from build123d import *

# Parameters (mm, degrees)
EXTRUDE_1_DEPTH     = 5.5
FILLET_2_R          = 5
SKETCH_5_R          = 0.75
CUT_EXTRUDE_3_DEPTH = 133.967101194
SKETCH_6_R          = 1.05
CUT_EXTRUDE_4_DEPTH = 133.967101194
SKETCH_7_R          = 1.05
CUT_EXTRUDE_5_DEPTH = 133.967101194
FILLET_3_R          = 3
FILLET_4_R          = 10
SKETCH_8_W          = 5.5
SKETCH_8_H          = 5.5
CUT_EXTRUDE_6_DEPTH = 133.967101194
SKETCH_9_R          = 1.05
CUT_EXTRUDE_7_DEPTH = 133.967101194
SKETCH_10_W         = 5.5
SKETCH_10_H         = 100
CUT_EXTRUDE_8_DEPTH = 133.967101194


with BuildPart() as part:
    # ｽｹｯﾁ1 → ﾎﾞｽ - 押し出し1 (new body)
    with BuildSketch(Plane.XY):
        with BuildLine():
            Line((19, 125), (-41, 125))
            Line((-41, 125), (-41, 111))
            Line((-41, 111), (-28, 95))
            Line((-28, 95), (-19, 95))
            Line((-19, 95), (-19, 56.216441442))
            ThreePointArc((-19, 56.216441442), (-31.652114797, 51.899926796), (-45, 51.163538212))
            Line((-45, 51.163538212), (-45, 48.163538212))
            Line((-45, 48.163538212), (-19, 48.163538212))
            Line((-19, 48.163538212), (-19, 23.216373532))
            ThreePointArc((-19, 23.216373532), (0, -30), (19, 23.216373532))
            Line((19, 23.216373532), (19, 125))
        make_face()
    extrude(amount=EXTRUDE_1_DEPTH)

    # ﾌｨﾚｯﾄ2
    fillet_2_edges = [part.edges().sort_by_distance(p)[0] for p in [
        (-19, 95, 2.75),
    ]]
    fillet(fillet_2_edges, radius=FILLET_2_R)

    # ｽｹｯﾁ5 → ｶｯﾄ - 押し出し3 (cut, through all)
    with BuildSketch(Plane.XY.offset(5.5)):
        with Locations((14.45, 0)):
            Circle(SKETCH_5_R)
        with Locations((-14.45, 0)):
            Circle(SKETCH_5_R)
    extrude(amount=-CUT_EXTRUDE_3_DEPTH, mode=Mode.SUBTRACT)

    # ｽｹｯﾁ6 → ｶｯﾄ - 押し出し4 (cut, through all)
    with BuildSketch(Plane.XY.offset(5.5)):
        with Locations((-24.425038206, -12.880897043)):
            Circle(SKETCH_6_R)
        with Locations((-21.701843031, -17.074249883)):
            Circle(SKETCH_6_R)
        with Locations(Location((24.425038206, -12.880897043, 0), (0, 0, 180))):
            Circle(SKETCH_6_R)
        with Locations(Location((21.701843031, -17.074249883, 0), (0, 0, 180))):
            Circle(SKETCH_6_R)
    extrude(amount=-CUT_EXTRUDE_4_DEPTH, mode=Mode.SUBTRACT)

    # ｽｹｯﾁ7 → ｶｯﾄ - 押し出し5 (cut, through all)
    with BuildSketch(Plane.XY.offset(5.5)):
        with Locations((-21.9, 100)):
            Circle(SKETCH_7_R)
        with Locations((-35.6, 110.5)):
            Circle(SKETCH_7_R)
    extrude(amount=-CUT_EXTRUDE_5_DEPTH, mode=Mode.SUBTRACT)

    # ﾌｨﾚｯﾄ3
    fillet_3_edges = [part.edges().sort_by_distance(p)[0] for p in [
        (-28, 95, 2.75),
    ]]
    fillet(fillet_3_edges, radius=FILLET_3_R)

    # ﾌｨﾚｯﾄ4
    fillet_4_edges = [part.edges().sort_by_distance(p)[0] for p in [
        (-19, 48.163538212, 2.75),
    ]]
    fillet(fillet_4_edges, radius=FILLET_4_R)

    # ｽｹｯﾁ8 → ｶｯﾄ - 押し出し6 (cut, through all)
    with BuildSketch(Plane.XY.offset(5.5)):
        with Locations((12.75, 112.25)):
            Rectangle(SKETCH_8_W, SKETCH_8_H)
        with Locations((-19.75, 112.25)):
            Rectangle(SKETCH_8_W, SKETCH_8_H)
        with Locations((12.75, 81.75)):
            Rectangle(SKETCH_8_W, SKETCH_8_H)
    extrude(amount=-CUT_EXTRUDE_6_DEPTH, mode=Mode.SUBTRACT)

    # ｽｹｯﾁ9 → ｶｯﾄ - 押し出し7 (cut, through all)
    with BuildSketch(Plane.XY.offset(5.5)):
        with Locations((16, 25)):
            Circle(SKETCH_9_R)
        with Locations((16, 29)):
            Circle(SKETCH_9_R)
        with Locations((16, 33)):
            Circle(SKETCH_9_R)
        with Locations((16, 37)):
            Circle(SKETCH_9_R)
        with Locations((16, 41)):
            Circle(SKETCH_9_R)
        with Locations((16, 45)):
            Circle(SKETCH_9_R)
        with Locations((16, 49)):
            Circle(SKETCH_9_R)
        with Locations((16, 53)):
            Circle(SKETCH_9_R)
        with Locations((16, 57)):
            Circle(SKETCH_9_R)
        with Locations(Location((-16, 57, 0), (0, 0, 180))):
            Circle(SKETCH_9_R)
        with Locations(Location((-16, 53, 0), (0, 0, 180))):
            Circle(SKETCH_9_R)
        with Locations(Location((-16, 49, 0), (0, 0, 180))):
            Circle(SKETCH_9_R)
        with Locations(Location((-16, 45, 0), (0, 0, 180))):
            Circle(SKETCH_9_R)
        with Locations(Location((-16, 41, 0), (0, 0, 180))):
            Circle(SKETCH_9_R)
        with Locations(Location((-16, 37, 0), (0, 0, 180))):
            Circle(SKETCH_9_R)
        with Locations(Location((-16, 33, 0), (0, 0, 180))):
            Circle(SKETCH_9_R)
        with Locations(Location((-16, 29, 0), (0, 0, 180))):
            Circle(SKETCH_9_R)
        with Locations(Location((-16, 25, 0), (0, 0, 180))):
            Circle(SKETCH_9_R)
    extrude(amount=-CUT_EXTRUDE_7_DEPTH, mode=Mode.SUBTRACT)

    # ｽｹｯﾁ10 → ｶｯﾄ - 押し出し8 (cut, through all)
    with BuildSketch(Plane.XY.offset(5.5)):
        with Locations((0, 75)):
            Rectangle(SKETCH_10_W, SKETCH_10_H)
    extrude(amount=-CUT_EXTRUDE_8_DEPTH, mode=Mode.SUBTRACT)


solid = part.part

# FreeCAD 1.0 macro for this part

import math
import FreeCAD as App
import Part
import Sketcher
Q = App.Units.Quantity


def edges_at(feature, points):
    """Names of the edges that pass closest to the given points."""
    edges = feature.Shape.Edges
    near = lambda p: min(range(len(edges)), key=lambda i: edges[i].distToShape(Part.Vertex(*p))[0])
    return sorted({f"Edge{near(p) + 1}" for p in points})

doc = App.newDocument("Part")
body = doc.addObject("PartDesign::Body", "Body")

sketch1 = body.newObject("Sketcher::SketchObject", "Sketch")
sketch1.AttachmentSupport = (doc.getObject("XY_Plane"), [""])
sketch1.MapMode = "FlatFace"
sketch1.addGeometry([
    Part.LineSegment(App.Vector(19, 125, 0), App.Vector(-41, 125, 0)),
    Part.LineSegment(App.Vector(-41, 125, 0), App.Vector(-41, 111, 0)),
    Part.LineSegment(App.Vector(-41, 111, 0), App.Vector(-28, 95, 0)),
    Part.LineSegment(App.Vector(-28, 95, 0), App.Vector(-19, 95, 0)),
    Part.LineSegment(App.Vector(-19, 95, 0), App.Vector(-19, 56.2, 0)),
    Part.ArcOfCircle(Part.Circle(App.Vector(-41, 100, 0), App.Vector(0, 0, 1), 49), math.radians(-95), math.radians(-63)),
    Part.LineSegment(App.Vector(-45, 51.2, 0), App.Vector(-45, 48.2, 0)),
    Part.LineSegment(App.Vector(-45, 48.2, 0), App.Vector(-19, 48.2, 0)),
    Part.LineSegment(App.Vector(-19, 48.2, 0), App.Vector(-19, 23.2, 0)),
    Part.ArcOfCircle(Part.Circle(App.Vector(0, 0, 0), App.Vector(0, 0, 1), 30), math.radians(129), math.radians(411)),
    Part.LineSegment(App.Vector(19, 23.2, 0), App.Vector(19, 125, 0)),
], False)
sketch1.addConstraint([
    Sketcher.Constraint("Coincident", 0, 2, 1, 1),
    Sketcher.Constraint("Coincident", 1, 2, 2, 1),
    Sketcher.Constraint("Coincident", 2, 2, 3, 1),
    Sketcher.Constraint("Coincident", 3, 2, 4, 1),
    Sketcher.Constraint("Coincident", 4, 2, 5, 2),
    Sketcher.Constraint("Coincident", 5, 1, 6, 1),
    Sketcher.Constraint("Coincident", 6, 2, 7, 1),
    Sketcher.Constraint("Coincident", 7, 2, 8, 1),
    Sketcher.Constraint("Coincident", 8, 2, 9, 1),
    Sketcher.Constraint("Coincident", 9, 2, 10, 1),
    Sketcher.Constraint("Coincident", 10, 2, 0, 1),
    Sketcher.Constraint("Horizontal", 0),
    Sketcher.Constraint("Vertical", 1),
    Sketcher.Constraint("Horizontal", 3),
    Sketcher.Constraint("Vertical", 4),
    Sketcher.Constraint("Vertical", 6),
    Sketcher.Constraint("Horizontal", 7),
    Sketcher.Constraint("Vertical", 8),
    Sketcher.Constraint("Vertical", 10),
    Sketcher.Constraint("Coincident", 9, 3, -1, 1),
    Sketcher.Constraint("Horizontal", 8, 2, 9, 2),
    Sketcher.Constraint("Vertical", 5, 3, 0, 2),
    Sketcher.Constraint("Vertical", 4, 2, 7, 2),
    Sketcher.Constraint("Radius", 5, Q("49 mm")),
    Sketcher.Constraint("Radius", 9, Q("30 mm")),
    Sketcher.Constraint("DistanceX", 0, 2, 0, 1, Q("60 mm")),
    Sketcher.Constraint("DistanceX", 3, 1, 3, 2, Q("9 mm")),
    Sketcher.Constraint("DistanceX", 7, 1, 7, 2, Q("26 mm")),
    Sketcher.Constraint("DistanceY", 1, 2, 1, 1, Q("14 mm")),
    Sketcher.Constraint("DistanceY", 6, 2, 6, 1, Q("3 mm")),
    Sketcher.Constraint("DistanceX", 5, 3, -1, 1, Q("41 mm")),
    Sketcher.Constraint("DistanceY", -1, 1, 5, 3, Q("100 mm")),
    Sketcher.Constraint("DistanceY", -1, 1, 0, 2, Q("125 mm")),
    Sketcher.Constraint("DistanceY", -1, 1, 2, 2, Q("95 mm")),
])
pad1 = body.newObject("PartDesign::Pad", "Pad")
pad1.Profile = sketch1
pad1.Length = 5.5
doc.recompute()

fillet = body.newObject("PartDesign::Fillet", "Fillet")
fillet.Base = (pad1, edges_at(pad1, [(-19, 95, 2.75)]))
fillet.Radius = 5

sketch2 = body.newObject("Sketcher::SketchObject", "Sketch001")
sketch2.AttachmentSupport = (doc.getObject("XY_Plane"), [""])
sketch2.MapMode = "FlatFace"
sketch2.AttachmentOffset = App.Placement(App.Vector(0, 0, 5.5), App.Rotation())
sketch2.addGeometry([
    Part.Circle(App.Vector(14.4, 0, 0), App.Vector(0, 0, 1), 0.8),
    Part.Circle(App.Vector(-14.4, 0, 0), App.Vector(0, 0, 1), 0.8),
], False)
sketch2.addConstraint([
    Sketcher.Constraint("Equal", 0, 1),
    Sketcher.Constraint("Symmetric", 0, 3, 1, 3, -1, 1),
    Sketcher.Constraint("PointOnObject", 0, 3, -1),
    Sketcher.Constraint("Diameter", 0, Q("1.5 mm")),
    Sketcher.Constraint("DistanceX", 1, 3, 0, 3, Q("28.9 mm")),
])
pocket1 = body.newObject("PartDesign::Pocket", "Pocket")
pocket1.Profile = sketch2
pocket1.Type = "ThroughAll"

sketch3 = body.newObject("Sketcher::SketchObject", "Sketch002")
sketch3.AttachmentSupport = (doc.getObject("XY_Plane"), [""])
sketch3.MapMode = "FlatFace"
sketch3.AttachmentOffset = App.Placement(App.Vector(0, 0, 5.5), App.Rotation())
sketch3.addGeometry([
    Part.Circle(App.Vector(-24.4, -12.9, 0), App.Vector(0, 0, 1), 1.1),
    Part.Circle(App.Vector(-21.7, -17.1, 0), App.Vector(0, 0, 1), 1.1),
    Part.Circle(App.Vector(24.4, -12.9, 0), App.Vector(0, 0, 1), 1.1),
    Part.Circle(App.Vector(21.7, -17.1, 0), App.Vector(0, 0, 1), 1.1),
], False)
sketch3.addConstraint([
    Sketcher.Constraint("Equal", 0, 1),
    Sketcher.Constraint("Equal", 1, 2),
    Sketcher.Constraint("Equal", 2, 3),
    Sketcher.Constraint("Symmetric", 0, 3, 2, 3, -2),
    Sketcher.Constraint("Symmetric", 1, 3, 3, 3, -2),
    Sketcher.Constraint("Diameter", 0, Q("2.1 mm")),
    Sketcher.Constraint("DistanceX", 0, 3, -1, 1, Q("24.425038 mm")),
    Sketcher.Constraint("DistanceY", 1, 3, -1, 1, Q("17.07425 mm")),
    Sketcher.Constraint("DistanceX", 1, 3, 2, 3, Q("46.126881 mm")),
    Sketcher.Constraint("DistanceY", 0, 3, -1, 1, Q("12.880897 mm")),
])
pocket2 = body.newObject("PartDesign::Pocket", "Pocket001")
pocket2.Profile = sketch3
pocket2.Type = "ThroughAll"

sketch4 = body.newObject("Sketcher::SketchObject", "Sketch003")
sketch4.AttachmentSupport = (doc.getObject("XY_Plane"), [""])
sketch4.MapMode = "FlatFace"
sketch4.AttachmentOffset = App.Placement(App.Vector(0, 0, 5.5), App.Rotation())
sketch4.addGeometry([
    Part.Circle(App.Vector(-21.9, 100, 0), App.Vector(0, 0, 1), 1.1),
    Part.Circle(App.Vector(-35.6, 110.5, 0), App.Vector(0, 0, 1), 1.1),
], False)
sketch4.addConstraint([
    Sketcher.Constraint("Equal", 0, 1),
    Sketcher.Constraint("Diameter", 0, Q("2.1 mm")),
    Sketcher.Constraint("DistanceY", -1, 1, 0, 3, Q("100 mm")),
    Sketcher.Constraint("DistanceX", 0, 3, -1, 1, Q("21.9 mm")),
    Sketcher.Constraint("DistanceX", 1, 3, -1, 1, Q("35.6 mm")),
    Sketcher.Constraint("DistanceY", -1, 1, 1, 3, Q("110.5 mm")),
])
pocket3 = body.newObject("PartDesign::Pocket", "Pocket002")
pocket3.Profile = sketch4
pocket3.Type = "ThroughAll"
doc.recompute()

fillet2 = body.newObject("PartDesign::Fillet", "Fillet001")
fillet2.Base = (pocket3, edges_at(pocket3, [(-28, 95, 2.75)]))
fillet2.Radius = 3
doc.recompute()

fillet3 = body.newObject("PartDesign::Fillet", "Fillet002")
fillet3.Base = (fillet2, edges_at(fillet2, [(-19, 48.164, 2.75)]))
fillet3.Radius = 10

sketch5 = body.newObject("Sketcher::SketchObject", "Sketch004")
sketch5.AttachmentSupport = (doc.getObject("XY_Plane"), [""])
sketch5.MapMode = "FlatFace"
sketch5.AttachmentOffset = App.Placement(App.Vector(0, 0, 5.5), App.Rotation())
sketch5.addGeometry([
    Part.LineSegment(App.Vector(10, 115, 0), App.Vector(10, 110, 0)),
    Part.LineSegment(App.Vector(10, 110, 0), App.Vector(16, 110, 0)),
    Part.LineSegment(App.Vector(16, 110, 0), App.Vector(16, 115, 0)),
    Part.LineSegment(App.Vector(16, 115, 0), App.Vector(10, 115, 0)),
    Part.LineSegment(App.Vector(-22, 115, 0), App.Vector(-22, 110, 0)),
    Part.LineSegment(App.Vector(-22, 110, 0), App.Vector(-17, 110, 0)),
    Part.LineSegment(App.Vector(-17, 110, 0), App.Vector(-17, 115, 0)),
    Part.LineSegment(App.Vector(-17, 115, 0), App.Vector(-22, 115, 0)),
    Part.LineSegment(App.Vector(10, 84, 0), App.Vector(10, 79, 0)),
    Part.LineSegment(App.Vector(10, 79, 0), App.Vector(16, 79, 0)),
    Part.LineSegment(App.Vector(16, 79, 0), App.Vector(16, 84, 0)),
    Part.LineSegment(App.Vector(16, 84, 0), App.Vector(10, 84, 0)),
], False)
sketch5.addConstraint([
    Sketcher.Constraint("Coincident", 0, 2, 1, 1),
    Sketcher.Constraint("Coincident", 1, 2, 2, 1),
    Sketcher.Constraint("Coincident", 2, 2, 3, 1),
    Sketcher.Constraint("Coincident", 3, 2, 0, 1),
    Sketcher.Constraint("Coincident", 4, 2, 5, 1),
    Sketcher.Constraint("Coincident", 5, 2, 6, 1),
    Sketcher.Constraint("Coincident", 6, 2, 7, 1),
    Sketcher.Constraint("Coincident", 7, 2, 4, 1),
    Sketcher.Constraint("Coincident", 8, 2, 9, 1),
    Sketcher.Constraint("Coincident", 9, 2, 10, 1),
    Sketcher.Constraint("Coincident", 10, 2, 11, 1),
    Sketcher.Constraint("Coincident", 11, 2, 8, 1),
    Sketcher.Constraint("Vertical", 0),
    Sketcher.Constraint("Horizontal", 1),
    Sketcher.Constraint("Vertical", 2),
    Sketcher.Constraint("Horizontal", 3),
    Sketcher.Constraint("Vertical", 4),
    Sketcher.Constraint("Horizontal", 5),
    Sketcher.Constraint("Vertical", 6),
    Sketcher.Constraint("Horizontal", 7),
    Sketcher.Constraint("Vertical", 8),
    Sketcher.Constraint("Horizontal", 9),
    Sketcher.Constraint("Vertical", 10),
    Sketcher.Constraint("Horizontal", 11),
    Sketcher.Constraint("Horizontal", 1, 2, 4, 2),
    Sketcher.Constraint("Horizontal", 3, 2, 6, 2),
    Sketcher.Constraint("Vertical", 3, 2, 8, 2),
    Sketcher.Constraint("Vertical", 2, 2, 9, 2),
    Sketcher.Constraint("Equal", 3, 5),
    Sketcher.Constraint("Equal", 11, 0),
    Sketcher.Constraint("Equal", 6, 8),
    Sketcher.Constraint("DistanceX", 1, 1, 1, 2, Q("5.5 mm")),
    Sketcher.Constraint("DistanceX", -1, 1, 0, 2, Q("10 mm")),
    Sketcher.Constraint("DistanceY", -1, 1, 2, 2, Q("115 mm")),
    Sketcher.Constraint("DistanceX", 5, 2, -1, 1, Q("17 mm")),
    Sketcher.Constraint("DistanceY", -1, 1, 8, 2, Q("79 mm")),
])
pocket4 = body.newObject("PartDesign::Pocket", "Pocket003")
pocket4.Profile = sketch5
pocket4.Type = "ThroughAll"

sketch6 = body.newObject("Sketcher::SketchObject", "Sketch005")
sketch6.AttachmentSupport = (doc.getObject("XY_Plane"), [""])
sketch6.MapMode = "FlatFace"
sketch6.AttachmentOffset = App.Placement(App.Vector(0, 0, 5.5), App.Rotation())
sketch6.addGeometry([
    Part.Circle(App.Vector(16, 25, 0), App.Vector(0, 0, 1), 1.1),
    Part.Circle(App.Vector(16, 29, 0), App.Vector(0, 0, 1), 1.1),
    Part.Circle(App.Vector(16, 33, 0), App.Vector(0, 0, 1), 1.1),
    Part.Circle(App.Vector(16, 37, 0), App.Vector(0, 0, 1), 1.1),
    Part.Circle(App.Vector(16, 41, 0), App.Vector(0, 0, 1), 1.1),
    Part.Circle(App.Vector(16, 45, 0), App.Vector(0, 0, 1), 1.1),
    Part.Circle(App.Vector(16, 49, 0), App.Vector(0, 0, 1), 1.1),
    Part.Circle(App.Vector(16, 53, 0), App.Vector(0, 0, 1), 1.1),
    Part.Circle(App.Vector(16, 57, 0), App.Vector(0, 0, 1), 1.1),
    Part.Circle(App.Vector(-16, 57, 0), App.Vector(0, 0, 1), 1.1),
    Part.Circle(App.Vector(-16, 53, 0), App.Vector(0, 0, 1), 1.1),
    Part.Circle(App.Vector(-16, 49, 0), App.Vector(0, 0, 1), 1.1),
    Part.Circle(App.Vector(-16, 45, 0), App.Vector(0, 0, 1), 1.1),
    Part.Circle(App.Vector(-16, 41, 0), App.Vector(0, 0, 1), 1.1),
    Part.Circle(App.Vector(-16, 37, 0), App.Vector(0, 0, 1), 1.1),
    Part.Circle(App.Vector(-16, 33, 0), App.Vector(0, 0, 1), 1.1),
    Part.Circle(App.Vector(-16, 29, 0), App.Vector(0, 0, 1), 1.1),
    Part.Circle(App.Vector(-16, 25, 0), App.Vector(0, 0, 1), 1.1),
], False)
sketch6.addConstraint([
    Sketcher.Constraint("Equal", 0, 1),
    Sketcher.Constraint("Equal", 1, 2),
    Sketcher.Constraint("Equal", 2, 3),
    Sketcher.Constraint("Equal", 3, 4),
    Sketcher.Constraint("Equal", 4, 5),
    Sketcher.Constraint("Equal", 5, 6),
    Sketcher.Constraint("Equal", 6, 7),
    Sketcher.Constraint("Equal", 7, 8),
    Sketcher.Constraint("Equal", 8, 9),
    Sketcher.Constraint("Equal", 9, 10),
    Sketcher.Constraint("Equal", 10, 11),
    Sketcher.Constraint("Equal", 11, 12),
    Sketcher.Constraint("Equal", 12, 13),
    Sketcher.Constraint("Equal", 13, 14),
    Sketcher.Constraint("Equal", 14, 15),
    Sketcher.Constraint("Equal", 15, 16),
    Sketcher.Constraint("Equal", 16, 17),
    Sketcher.Constraint("Symmetric", 8, 3, 9, 3, -2),
    Sketcher.Constraint("Symmetric", 7, 3, 10, 3, -2),
    Sketcher.Constraint("Symmetric", 6, 3, 11, 3, -2),
    Sketcher.Constraint("Symmetric", 5, 3, 12, 3, -2),
    Sketcher.Constraint("Symmetric", 4, 3, 13, 3, -2),
    Sketcher.Constraint("Symmetric", 3, 3, 14, 3, -2),
    Sketcher.Constraint("Symmetric", 2, 3, 15, 3, -2),
    Sketcher.Constraint("Symmetric", 1, 3, 16, 3, -2),
    Sketcher.Constraint("Symmetric", 0, 3, 17, 3, -2),
    Sketcher.Constraint("Vertical", 0, 3, 1, 3),
    Sketcher.Constraint("Vertical", 1, 3, 2, 3),
    Sketcher.Constraint("Vertical", 2, 3, 3, 3),
    Sketcher.Constraint("Vertical", 3, 3, 4, 3),
    Sketcher.Constraint("Vertical", 4, 3, 5, 3),
    Sketcher.Constraint("Vertical", 5, 3, 6, 3),
    Sketcher.Constraint("Vertical", 6, 3, 7, 3),
    Sketcher.Constraint("Vertical", 7, 3, 8, 3),
    Sketcher.Constraint("Diameter", 0, Q("2.1 mm")),
    Sketcher.Constraint("DistanceX", -1, 1, 0, 3, Q("16 mm")),
    Sketcher.Constraint("DistanceY", -1, 1, 0, 3, Q("25 mm")),
    Sketcher.Constraint("DistanceY", -1, 1, 1, 3, Q("29 mm")),
    Sketcher.Constraint("DistanceY", -1, 1, 2, 3, Q("33 mm")),
    Sketcher.Constraint("DistanceY", -1, 1, 3, 3, Q("37 mm")),
    Sketcher.Constraint("DistanceY", -1, 1, 4, 3, Q("41 mm")),
    Sketcher.Constraint("DistanceY", -1, 1, 5, 3, Q("45 mm")),
    Sketcher.Constraint("DistanceY", -1, 1, 6, 3, Q("49 mm")),
    Sketcher.Constraint("DistanceY", -1, 1, 7, 3, Q("53 mm")),
    Sketcher.Constraint("DistanceY", -1, 1, 8, 3, Q("57 mm")),
])
pocket5 = body.newObject("PartDesign::Pocket", "Pocket004")
pocket5.Profile = sketch6
pocket5.Type = "ThroughAll"

sketch7 = body.newObject("Sketcher::SketchObject", "Sketch006")
sketch7.AttachmentSupport = (doc.getObject("XY_Plane"), [""])
sketch7.MapMode = "FlatFace"
sketch7.AttachmentOffset = App.Placement(App.Vector(0, 0, 5.5), App.Rotation())
sketch7.addGeometry([
    Part.LineSegment(App.Vector(-3, 125, 0), App.Vector(-3, 25, 0)),
    Part.LineSegment(App.Vector(-3, 25, 0), App.Vector(3, 25, 0)),
    Part.LineSegment(App.Vector(3, 25, 0), App.Vector(3, 125, 0)),
    Part.LineSegment(App.Vector(3, 125, 0), App.Vector(-3, 125, 0)),
], False)
sketch7.addConstraint([
    Sketcher.Constraint("Coincident", 0, 2, 1, 1),
    Sketcher.Constraint("Coincident", 1, 2, 2, 1),
    Sketcher.Constraint("Coincident", 2, 2, 3, 1),
    Sketcher.Constraint("Coincident", 3, 2, 0, 1),
    Sketcher.Constraint("Vertical", 0),
    Sketcher.Constraint("Horizontal", 1),
    Sketcher.Constraint("Vertical", 2),
    Sketcher.Constraint("Horizontal", 3),
    Sketcher.Constraint("DistanceY", 0, 2, 0, 1, Q("100 mm")),
    Sketcher.Constraint("DistanceX", 1, 1, 1, 2, Q("5.5 mm")),
    Sketcher.Constraint("DistanceY", -1, 1, 0, 2, Q("25 mm")),
    Sketcher.Constraint("DistanceX", 0, 2, -1, 1, Q("2.75 mm")),
])
pocket6 = body.newObject("PartDesign::Pocket", "Pocket005")
pocket6.Profile = sketch7
pocket6.Type = "ThroughAll"

doc.recompute()
